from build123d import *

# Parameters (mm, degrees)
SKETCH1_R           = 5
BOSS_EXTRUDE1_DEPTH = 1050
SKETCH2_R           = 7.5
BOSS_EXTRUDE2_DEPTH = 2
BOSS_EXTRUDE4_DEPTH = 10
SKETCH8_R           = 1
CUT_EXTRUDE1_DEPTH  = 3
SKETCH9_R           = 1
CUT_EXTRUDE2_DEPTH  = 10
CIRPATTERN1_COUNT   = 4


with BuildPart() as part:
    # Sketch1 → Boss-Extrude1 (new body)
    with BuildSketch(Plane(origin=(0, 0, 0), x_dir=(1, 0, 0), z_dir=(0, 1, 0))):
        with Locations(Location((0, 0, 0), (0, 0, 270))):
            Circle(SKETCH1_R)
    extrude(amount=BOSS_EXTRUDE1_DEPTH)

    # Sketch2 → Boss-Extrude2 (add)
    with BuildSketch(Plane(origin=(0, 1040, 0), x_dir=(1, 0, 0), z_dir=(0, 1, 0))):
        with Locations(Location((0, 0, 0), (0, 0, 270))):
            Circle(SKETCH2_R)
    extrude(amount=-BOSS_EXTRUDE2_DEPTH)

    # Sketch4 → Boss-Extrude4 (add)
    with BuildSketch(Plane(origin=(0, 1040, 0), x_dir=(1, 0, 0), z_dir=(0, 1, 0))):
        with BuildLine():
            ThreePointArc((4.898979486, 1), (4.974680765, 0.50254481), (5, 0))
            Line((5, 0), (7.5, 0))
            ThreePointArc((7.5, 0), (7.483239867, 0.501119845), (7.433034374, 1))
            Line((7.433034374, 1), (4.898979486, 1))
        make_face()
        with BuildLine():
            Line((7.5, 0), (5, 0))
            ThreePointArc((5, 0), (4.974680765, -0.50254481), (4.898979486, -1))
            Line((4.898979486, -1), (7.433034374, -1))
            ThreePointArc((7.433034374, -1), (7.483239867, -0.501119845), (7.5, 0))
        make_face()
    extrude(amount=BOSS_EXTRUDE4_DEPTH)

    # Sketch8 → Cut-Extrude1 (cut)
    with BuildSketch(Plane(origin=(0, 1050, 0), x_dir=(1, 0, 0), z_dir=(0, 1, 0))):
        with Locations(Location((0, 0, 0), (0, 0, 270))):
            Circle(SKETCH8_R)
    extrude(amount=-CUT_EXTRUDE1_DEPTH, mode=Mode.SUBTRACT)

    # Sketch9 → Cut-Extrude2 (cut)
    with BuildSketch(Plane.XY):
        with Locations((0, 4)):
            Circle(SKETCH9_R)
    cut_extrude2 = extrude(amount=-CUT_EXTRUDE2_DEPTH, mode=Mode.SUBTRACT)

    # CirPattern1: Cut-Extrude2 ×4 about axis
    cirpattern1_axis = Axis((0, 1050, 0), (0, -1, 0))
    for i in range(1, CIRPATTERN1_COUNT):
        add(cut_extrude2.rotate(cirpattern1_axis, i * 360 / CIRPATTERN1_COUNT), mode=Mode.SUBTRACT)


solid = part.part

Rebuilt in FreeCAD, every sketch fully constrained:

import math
import FreeCAD as App
import Part
import Sketcher

V = App.Vector

doc = App.newDocument("Part")
body = doc.addObject("PartDesign::Body", "Body")

# Sketch on XZ plane
sketch1 = body.newObject("Sketcher::SketchObject", "Sketch")
sketch1.AttachmentSupport = (doc.getObject("XZ_Plane"), [""])
sketch1.MapMode = "FlatFace"
sketch1.addGeometry(Part.Circle(V(0, 0, 0), V(0, 0, 1), 5), False)
sketch1.addConstraint([
    Sketcher.Constraint("Coincident", 0, 3, -1, 1),
    Sketcher.Constraint("Diameter", 0, 10.0),
])
pad1 = body.newObject("PartDesign::Pad", "Pad")
pad1.Profile = sketch1
pad1.Length = 1050
pad1.Reversed = True

# Sketch on XZ plane
sketch2 = body.newObject("Sketcher::SketchObject", "Sketch001")
sketch2.AttachmentSupport = (doc.getObject("XZ_Plane"), [""])
sketch2.MapMode = "FlatFace"
sketch2.AttachmentOffset = App.Placement(V(0, 0, -1040), App.Rotation())
sketch2.addGeometry(Part.Circle(V(0, 0, 0), V(0, 0, 1), 8), False)
sketch2.addConstraint([
    Sketcher.Constraint("Coincident", 0, 3, -1, 1),
    Sketcher.Constraint("Diameter", 0, 15.0),
])
pad2 = body.newObject("PartDesign::Pad", "Pad001")
pad2.Profile = sketch2
pad2.Length = 2

# Sketch on XZ plane
sketch3 = body.newObject("Sketcher::SketchObject", "Sketch002")
sketch3.AttachmentSupport = (doc.getObject("XZ_Plane"), [""])
sketch3.MapMode = "FlatFace"
sketch3.AttachmentOffset = App.Placement(V(0, 0, -1040), App.Rotation())
sketch3.addGeometry([
    Part.ArcOfCircle(Part.Circle(V(0, 0, 0), V(0, 0, 1), 5), math.radians(-11.54), math.radians(0)),  # 0
    Part.ArcOfCircle(Part.Circle(V(0, 0, 0), V(0, 0, 1), 5), math.radians(0), math.radians(11.54)),  # 1
    Part.LineSegment(V(4.9, 1, 0), V(7.4, 1, 0)),  # 2
    Part.ArcOfCircle(Part.Circle(V(0, 0, 0), V(0, 0, 1), 7.5), math.radians(0), math.radians(7.66)),  # 3
    Part.ArcOfCircle(Part.Circle(V(0, 0, 0), V(0, 0, 1), 7.5), math.radians(-7.66), math.radians(0)),  # 4
    Part.LineSegment(V(7.4, -1, 0), V(4.9, -1, 0)),  # 5
], False)
sketch3.addConstraint([
    Sketcher.Constraint("Tangent", 0, 2, 1, 1),
    Sketcher.Constraint("Coincident", 1, 2, 2, 1),
    Sketcher.Constraint("Coincident", 2, 2, 3, 2),
    Sketcher.Constraint("Tangent", 3, 1, 4, 2),
    Sketcher.Constraint("Coincident", 4, 1, 5, 1),
    Sketcher.Constraint("Coincident", 5, 2, 0, 1),
    Sketcher.Constraint("Horizontal", 2),
    Sketcher.Constraint("Horizontal", 5),
    Sketcher.Constraint("Coincident", 0, 3, -1, 1),
    Sketcher.Constraint("Coincident", 3, 3, -1, 1),
    Sketcher.Constraint("Equal", 0, 1),
    Sketcher.Constraint("Equal", 3, 4),
    Sketcher.Constraint("PointOnObject", 0, 2, -1),
    Sketcher.Constraint("PointOnObject", 3, 1, -1),
    Sketcher.Constraint("Vertical", 2, 2, 4, 1),
    Sketcher.Constraint("Radius", 0, 5.0),
    Sketcher.Constraint("Radius", 3, 7.5),
    Sketcher.Constraint("DistanceY", -1, 1, 1, 2, 1.0),
])
pad3 = body.newObject("PartDesign::Pad", "Pad002")
pad3.Profile = sketch3
pad3.Length = 10
pad3.Reversed = True

# Sketch on XZ plane
sketch4 = body.newObject("Sketcher::SketchObject", "Sketch003")
sketch4.AttachmentSupport = (doc.getObject("XZ_Plane"), [""])
sketch4.MapMode = "FlatFace"
sketch4.AttachmentOffset = App.Placement(V(0, 0, -1050), App.Rotation())
sketch4.addGeometry(Part.Circle(V(0, 0, 0), V(0, 0, 1), 1), False)
sketch4.addConstraint([
    Sketcher.Constraint("Coincident", 0, 3, -1, 1),
    Sketcher.Constraint("Diameter", 0, 2.0),
])
pocket1 = body.newObject("PartDesign::Pocket", "Pocket")
pocket1.Profile = sketch4
pocket1.Length = 3
pocket1.Reversed = True

# Sketch on XY plane
sketch5 = body.newObject("Sketcher::SketchObject", "Sketch004")
sketch5.AttachmentSupport = (doc.getObject("XY_Plane"), [""])
sketch5.MapMode = "FlatFace"
sketch5.addGeometry(Part.Circle(V(0, 4, 0), V(0, 0, 1), 1), False)
sketch5.addConstraint([
    Sketcher.Constraint("PointOnObject", 0, 3, -2),
    Sketcher.Constraint("Diameter", 0, 2.0),
    Sketcher.Constraint("DistanceY", -1, 1, 0, 3, 4.0),
])
pocket2 = body.newObject("PartDesign::Pocket", "Pocket001")
pocket2.Profile = sketch5
pocket2.Length = 10
doc.recompute()

polarpattern = body.newObject("PartDesign::PolarPattern", "PolarPattern")
polarpattern.Originals = [pocket2]
polarpattern.Axis = (doc.getObject("Y_Axis"), [""])
polarpattern.Angle = 360
polarpattern.Occurrences = 4
body.Tip = polarpattern

doc.recompute()
